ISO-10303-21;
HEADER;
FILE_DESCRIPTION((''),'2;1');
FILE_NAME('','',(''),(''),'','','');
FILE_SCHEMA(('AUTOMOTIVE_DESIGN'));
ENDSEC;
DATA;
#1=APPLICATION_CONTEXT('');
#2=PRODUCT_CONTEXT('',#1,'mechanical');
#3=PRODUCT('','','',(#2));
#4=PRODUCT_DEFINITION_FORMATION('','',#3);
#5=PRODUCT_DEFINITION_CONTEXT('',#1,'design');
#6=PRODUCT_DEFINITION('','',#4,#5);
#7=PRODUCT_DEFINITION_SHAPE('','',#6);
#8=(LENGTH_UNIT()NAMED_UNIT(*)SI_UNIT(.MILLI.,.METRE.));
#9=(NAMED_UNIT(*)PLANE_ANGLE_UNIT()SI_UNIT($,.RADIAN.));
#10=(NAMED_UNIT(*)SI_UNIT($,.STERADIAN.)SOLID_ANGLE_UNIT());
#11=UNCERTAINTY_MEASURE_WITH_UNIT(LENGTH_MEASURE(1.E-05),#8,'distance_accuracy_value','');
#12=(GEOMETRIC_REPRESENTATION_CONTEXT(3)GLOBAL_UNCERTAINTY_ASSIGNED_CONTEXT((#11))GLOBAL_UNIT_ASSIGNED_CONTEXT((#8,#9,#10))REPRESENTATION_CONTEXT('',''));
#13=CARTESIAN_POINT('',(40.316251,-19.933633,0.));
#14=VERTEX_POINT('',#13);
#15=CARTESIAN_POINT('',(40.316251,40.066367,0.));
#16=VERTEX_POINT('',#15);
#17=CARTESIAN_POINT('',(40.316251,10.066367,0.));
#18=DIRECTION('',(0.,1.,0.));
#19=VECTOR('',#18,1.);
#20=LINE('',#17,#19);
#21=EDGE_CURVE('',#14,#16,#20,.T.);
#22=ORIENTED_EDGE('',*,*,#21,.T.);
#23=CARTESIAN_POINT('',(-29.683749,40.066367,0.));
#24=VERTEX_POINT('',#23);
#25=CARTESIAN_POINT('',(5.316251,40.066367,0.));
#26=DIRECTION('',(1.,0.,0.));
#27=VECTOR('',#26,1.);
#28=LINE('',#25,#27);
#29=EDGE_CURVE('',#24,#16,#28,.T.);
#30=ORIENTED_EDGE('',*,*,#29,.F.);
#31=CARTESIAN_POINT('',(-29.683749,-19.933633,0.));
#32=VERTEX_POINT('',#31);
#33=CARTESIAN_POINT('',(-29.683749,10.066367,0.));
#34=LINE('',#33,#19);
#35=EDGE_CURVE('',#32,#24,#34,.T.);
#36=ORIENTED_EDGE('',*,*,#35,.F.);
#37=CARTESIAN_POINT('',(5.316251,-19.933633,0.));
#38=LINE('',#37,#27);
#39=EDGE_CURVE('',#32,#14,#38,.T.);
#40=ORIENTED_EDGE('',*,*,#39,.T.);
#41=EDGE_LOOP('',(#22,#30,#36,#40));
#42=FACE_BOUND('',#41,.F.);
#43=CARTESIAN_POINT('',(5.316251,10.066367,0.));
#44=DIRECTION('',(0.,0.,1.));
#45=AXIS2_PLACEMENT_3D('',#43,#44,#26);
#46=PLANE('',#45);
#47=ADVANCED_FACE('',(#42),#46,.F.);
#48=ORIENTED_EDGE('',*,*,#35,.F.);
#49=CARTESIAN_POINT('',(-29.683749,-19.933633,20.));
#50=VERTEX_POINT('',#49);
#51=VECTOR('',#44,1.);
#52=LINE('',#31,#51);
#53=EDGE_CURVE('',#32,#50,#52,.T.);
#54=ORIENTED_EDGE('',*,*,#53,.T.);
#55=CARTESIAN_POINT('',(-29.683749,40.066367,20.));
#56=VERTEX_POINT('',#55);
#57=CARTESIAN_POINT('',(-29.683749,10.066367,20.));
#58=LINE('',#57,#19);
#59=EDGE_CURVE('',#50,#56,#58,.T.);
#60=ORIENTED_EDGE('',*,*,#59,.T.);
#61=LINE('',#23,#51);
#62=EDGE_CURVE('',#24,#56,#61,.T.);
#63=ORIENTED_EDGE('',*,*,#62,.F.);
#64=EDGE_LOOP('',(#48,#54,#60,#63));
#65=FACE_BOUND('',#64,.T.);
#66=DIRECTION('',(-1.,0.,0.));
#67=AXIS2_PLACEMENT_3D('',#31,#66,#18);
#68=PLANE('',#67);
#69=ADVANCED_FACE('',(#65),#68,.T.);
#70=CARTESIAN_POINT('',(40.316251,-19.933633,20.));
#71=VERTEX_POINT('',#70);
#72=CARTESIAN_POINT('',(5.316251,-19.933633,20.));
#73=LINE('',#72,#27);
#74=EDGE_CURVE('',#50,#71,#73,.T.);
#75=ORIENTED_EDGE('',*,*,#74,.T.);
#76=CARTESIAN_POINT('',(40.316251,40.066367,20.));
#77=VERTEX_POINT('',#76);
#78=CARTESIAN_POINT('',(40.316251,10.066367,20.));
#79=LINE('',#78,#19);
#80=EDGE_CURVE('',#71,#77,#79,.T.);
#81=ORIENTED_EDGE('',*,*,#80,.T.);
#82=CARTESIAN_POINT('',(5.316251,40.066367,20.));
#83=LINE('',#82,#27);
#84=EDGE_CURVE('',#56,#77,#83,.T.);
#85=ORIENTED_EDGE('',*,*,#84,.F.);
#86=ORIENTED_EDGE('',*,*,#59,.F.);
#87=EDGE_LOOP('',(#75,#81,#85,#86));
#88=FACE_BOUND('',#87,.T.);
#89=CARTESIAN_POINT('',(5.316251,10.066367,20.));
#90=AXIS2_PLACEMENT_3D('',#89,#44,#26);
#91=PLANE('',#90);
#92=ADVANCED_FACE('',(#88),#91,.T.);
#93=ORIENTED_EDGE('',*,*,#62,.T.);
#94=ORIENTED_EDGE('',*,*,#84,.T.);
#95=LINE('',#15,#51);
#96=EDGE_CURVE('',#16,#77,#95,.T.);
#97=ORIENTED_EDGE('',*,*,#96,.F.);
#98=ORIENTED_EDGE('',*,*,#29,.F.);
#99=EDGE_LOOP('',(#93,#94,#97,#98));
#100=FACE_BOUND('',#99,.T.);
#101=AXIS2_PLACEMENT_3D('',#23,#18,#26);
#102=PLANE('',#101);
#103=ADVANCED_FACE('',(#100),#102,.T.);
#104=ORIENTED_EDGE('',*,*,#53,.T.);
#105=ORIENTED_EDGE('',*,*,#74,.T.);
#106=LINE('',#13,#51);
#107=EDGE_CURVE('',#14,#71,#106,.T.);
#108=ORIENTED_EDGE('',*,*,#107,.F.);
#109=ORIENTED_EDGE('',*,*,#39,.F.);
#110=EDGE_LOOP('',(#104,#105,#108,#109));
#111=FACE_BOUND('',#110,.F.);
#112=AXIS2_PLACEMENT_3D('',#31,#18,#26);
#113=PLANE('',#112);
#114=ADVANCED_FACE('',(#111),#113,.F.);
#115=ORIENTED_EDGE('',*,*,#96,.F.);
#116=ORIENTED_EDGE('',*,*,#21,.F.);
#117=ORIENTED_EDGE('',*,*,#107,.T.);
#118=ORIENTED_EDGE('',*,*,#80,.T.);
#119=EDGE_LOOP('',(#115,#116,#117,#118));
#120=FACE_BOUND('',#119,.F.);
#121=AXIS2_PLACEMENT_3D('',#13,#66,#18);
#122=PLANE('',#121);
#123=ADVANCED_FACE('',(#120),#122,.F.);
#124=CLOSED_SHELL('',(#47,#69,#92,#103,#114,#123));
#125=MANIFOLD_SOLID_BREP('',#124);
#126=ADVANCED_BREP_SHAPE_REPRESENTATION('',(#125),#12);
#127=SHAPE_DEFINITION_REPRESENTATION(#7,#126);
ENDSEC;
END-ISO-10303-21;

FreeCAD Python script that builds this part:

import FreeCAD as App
import Part
import Sketcher
from FreeCAD import Vector
Q = App.Units.Quantity

doc = App.newDocument("Part")
params = doc.addObject("Spreadsheet::Sheet", "Params")
for row, (alias, value) in enumerate([
    ("sketch1_width", "70 mm"),
    ("sketch1_height", "60 mm"),
    ("pad1_length", "20 mm"),
], start=1):
    params.set(f"A{row}", alias)
    params.set(f"B{row}", "=" + value)
    params.setAlias(f"B{row}", alias)

body = doc.addObject("PartDesign::Body", "Body")

sketch1 = body.newObject("Sketcher::SketchObject", "Sketch")
sketch1.AttachmentSupport = (doc.getObject("XY_Plane"), [""])
sketch1.MapMode = "FlatFace"
sketch1.addGeometry(Part.LineSegment(Vector(-29.683749, 40.066367, 0), Vector(-29.683749, -19.933633, 0)), False)
sketch1.addGeometry(Part.LineSegment(Vector(-29.683749, -19.933633, 0), Vector(40.316251, -19.933633, 0)), False)
sketch1.addGeometry(Part.LineSegment(Vector(40.316251, -19.933633, 0), Vector(40.316251, 40.066367, 0)), False)
sketch1.addGeometry(Part.LineSegment(Vector(40.316251, 40.066367, 0), Vector(-29.683749, 40.066367, 0)), False)
sketch1.addConstraint(Sketcher.Constraint("Coincident", 0, 2, 1, 1))
sketch1.addConstraint(Sketcher.Constraint("Coincident", 1, 2, 2, 1))
sketch1.addConstraint(Sketcher.Constraint("Coincident", 2, 2, 3, 1))
sketch1.addConstraint(Sketcher.Constraint("Coincident", 3, 2, 0, 1))
sketch1.addConstraint(Sketcher.Constraint("Vertical", 0))
sketch1.addConstraint(Sketcher.Constraint("Horizontal", 1))
sketch1.addConstraint(Sketcher.Constraint("Vertical", 2))
sketch1.addConstraint(Sketcher.Constraint("Horizontal", 3))
sketch1.addConstraint(Sketcher.Constraint("DistanceX", 1, 1, 1, 2, Q("70 mm")))
sketch1.addConstraint(Sketcher.Constraint("DistanceY", 0, 2, 0, 1, Q("60 mm")))
sketch1.addConstraint(Sketcher.Constraint("DistanceX", 0, 2, -1, 1, Q("29.683749 mm")))
sketch1.addConstraint(Sketcher.Constraint("DistanceY", 0, 2, -1, 1, Q("19.933633 mm")))
sketch1.setExpression("Constraints[8]", "Params.sketch1_width")
sketch1.setExpression("Constraints[9]", "Params.sketch1_height")
pad1 = body.newObject("PartDesign::Pad", "Pad")
pad1.Profile = sketch1
pad1.setExpression("Length", "Params.pad1_length")

doc.recompute()
